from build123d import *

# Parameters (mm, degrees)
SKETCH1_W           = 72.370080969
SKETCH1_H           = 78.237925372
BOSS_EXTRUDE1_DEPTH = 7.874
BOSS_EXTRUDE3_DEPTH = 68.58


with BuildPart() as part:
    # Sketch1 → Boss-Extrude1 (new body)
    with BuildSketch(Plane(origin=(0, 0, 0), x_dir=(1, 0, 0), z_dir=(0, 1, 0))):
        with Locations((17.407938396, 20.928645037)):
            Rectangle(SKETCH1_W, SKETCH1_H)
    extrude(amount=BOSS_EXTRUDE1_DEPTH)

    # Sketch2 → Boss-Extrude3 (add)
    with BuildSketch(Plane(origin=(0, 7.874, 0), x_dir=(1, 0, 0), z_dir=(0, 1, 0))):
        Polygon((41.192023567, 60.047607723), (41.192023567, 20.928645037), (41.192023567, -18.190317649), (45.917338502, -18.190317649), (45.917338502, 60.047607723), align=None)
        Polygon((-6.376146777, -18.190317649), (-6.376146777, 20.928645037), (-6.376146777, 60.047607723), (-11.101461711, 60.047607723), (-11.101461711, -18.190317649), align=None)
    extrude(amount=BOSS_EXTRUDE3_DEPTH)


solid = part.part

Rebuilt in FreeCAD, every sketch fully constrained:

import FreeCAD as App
import Part
import Sketcher
from FreeCAD import Vector
Q = App.Units.Quantity

doc = App.newDocument("Part")
body = doc.addObject("PartDesign::Body", "Body")

# Sketch on XZ plane
sketch1 = doc.addObject("Sketcher::SketchObject", "Sketch")
body.addObject(sketch1)
sketch1.AttachmentSupport = (doc.XZ_Plane, [""])
sketch1.MapMode = "FlatFace"
sketch1.addGeometry([
    Part.LineSegment(Vector(-19, -60, 0), Vector(-19, 18, 0)),
    Part.LineSegment(Vector(-19, 18, 0), Vector(54, 18, 0)),
    Part.LineSegment(Vector(54, 18, 0), Vector(54, -60, 0)),
    Part.LineSegment(Vector(54, -60, 0), Vector(-19, -60, 0)),
], False)
sketch1.addConstraint([
    Sketcher.Constraint("Coincident", 0, 2, 1, 1),
    Sketcher.Constraint("Coincident", 1, 2, 2, 1),
    Sketcher.Constraint("Coincident", 2, 2, 3, 1),
    Sketcher.Constraint("Coincident", 3, 2, 0, 1),
    Sketcher.Constraint("Vertical", 0),
    Sketcher.Constraint("Horizontal", 1),
    Sketcher.Constraint("Vertical", 2),
    Sketcher.Constraint("Horizontal", 3),
    Sketcher.Constraint("DistanceX", 1, 1, 1, 2, Q("72.370081 mm")),
    Sketcher.Constraint("DistanceY", 0, 1, 0, 2, Q("78.237925 mm")),
    Sketcher.Constraint("DistanceX", -1, 1, 1, 2, Q("53.592979 mm")),
    Sketcher.Constraint("DistanceY", -1, 1, 0, 2, Q("18.190318 mm")),
])
pad1 = doc.addObject("PartDesign::Pad", "Pad")
body.addObject(pad1)
pad1.Profile = sketch1
pad1.Length = Q("0.31 in")
pad1.Reversed = True

# Sketch on XZ plane
sketch2 = doc.addObject("Sketcher::SketchObject", "Sketch001")
body.addObject(sketch2)
sketch2.AttachmentSupport = (doc.XZ_Plane, [""])
sketch2.MapMode = "FlatFace"
sketch2.AttachmentOffset = App.Placement(Vector(0, 0, -0.31 * 25.4), App.Rotation())
sketch2.addGeometry([
    Part.LineSegment(Vector(41.2, -60, 0), Vector(41.2, 18.2, 0)),  # 0
    Part.LineSegment(Vector(41.2, 18.2, 0), Vector(45.9, 18.2, 0)),  # 1
    Part.LineSegment(Vector(45.9, 18.2, 0), Vector(45.9, -60, 0)),  # 2
    Part.LineSegment(Vector(45.9, -60, 0), Vector(41.2, -60, 0)),  # 3
    Part.LineSegment(Vector(-6.4, 18.2, 0), Vector(-6.4, -60, 0)),  # 4
    Part.LineSegment(Vector(-6.4, -60, 0), Vector(-11.1, -60, 0)),  # 5
    Part.LineSegment(Vector(-11.1, -60, 0), Vector(-11.1, 18.2, 0)),  # 6
    Part.LineSegment(Vector(-11.1, 18.2, 0), Vector(-6.4, 18.2, 0)),  # 7
], False)
sketch2.addConstraint([
    Sketcher.Constraint("Coincident", 0, 2, 1, 1),
    Sketcher.Constraint("Coincident", 1, 2, 2, 1),
    Sketcher.Constraint("Coincident", 2, 2, 3, 1),
    Sketcher.Constraint("Coincident", 3, 2, 0, 1),
    Sketcher.Constraint("Coincident", 4, 2, 5, 1),
    Sketcher.Constraint("Coincident", 5, 2, 6, 1),
    Sketcher.Constraint("Coincident", 6, 2, 7, 1),
    Sketcher.Constraint("Coincident", 7, 2, 4, 1),
    Sketcher.Constraint("Vertical", 0),
    Sketcher.Constraint("Horizontal", 1),
    Sketcher.Constraint("Vertical", 2),
    Sketcher.Constraint("Horizontal", 3),
    Sketcher.Constraint("Vertical", 4),
    Sketcher.Constraint("Horizontal", 5),
    Sketcher.Constraint("Vertical", 6),
    Sketcher.Constraint("Horizontal", 7),
    Sketcher.Constraint("Horizontal", 3, 2, 4, 2),
    Sketcher.Constraint("Horizontal", 1, 2, 6, 2),
    Sketcher.Constraint("Equal", 3, 5),
    Sketcher.Constraint("DistanceX", 5, 2, 2, 2, Q("57.0188 mm")),
    Sketcher.Constraint("DistanceX", 1, 1, 1, 2, Q("4.725315 mm")),
    Sketcher.Constraint("DistanceY", 0, 1, 0, 2, Q("78.237925 mm")),
    Sketcher.Constraint("DistanceX", -1, 1, 1, 2, Q("45.917339 mm")),
    Sketcher.Constraint("DistanceY", -1, 1, 0, 2, Q("18.190318 mm")),
])
pad2 = doc.addObject("PartDesign::Pad", "Pad001")
body.addObject(pad2)
pad2.Profile = sketch2
pad2.Length = Q("2.7 in")
pad2.Reversed = True

doc.recompute()
